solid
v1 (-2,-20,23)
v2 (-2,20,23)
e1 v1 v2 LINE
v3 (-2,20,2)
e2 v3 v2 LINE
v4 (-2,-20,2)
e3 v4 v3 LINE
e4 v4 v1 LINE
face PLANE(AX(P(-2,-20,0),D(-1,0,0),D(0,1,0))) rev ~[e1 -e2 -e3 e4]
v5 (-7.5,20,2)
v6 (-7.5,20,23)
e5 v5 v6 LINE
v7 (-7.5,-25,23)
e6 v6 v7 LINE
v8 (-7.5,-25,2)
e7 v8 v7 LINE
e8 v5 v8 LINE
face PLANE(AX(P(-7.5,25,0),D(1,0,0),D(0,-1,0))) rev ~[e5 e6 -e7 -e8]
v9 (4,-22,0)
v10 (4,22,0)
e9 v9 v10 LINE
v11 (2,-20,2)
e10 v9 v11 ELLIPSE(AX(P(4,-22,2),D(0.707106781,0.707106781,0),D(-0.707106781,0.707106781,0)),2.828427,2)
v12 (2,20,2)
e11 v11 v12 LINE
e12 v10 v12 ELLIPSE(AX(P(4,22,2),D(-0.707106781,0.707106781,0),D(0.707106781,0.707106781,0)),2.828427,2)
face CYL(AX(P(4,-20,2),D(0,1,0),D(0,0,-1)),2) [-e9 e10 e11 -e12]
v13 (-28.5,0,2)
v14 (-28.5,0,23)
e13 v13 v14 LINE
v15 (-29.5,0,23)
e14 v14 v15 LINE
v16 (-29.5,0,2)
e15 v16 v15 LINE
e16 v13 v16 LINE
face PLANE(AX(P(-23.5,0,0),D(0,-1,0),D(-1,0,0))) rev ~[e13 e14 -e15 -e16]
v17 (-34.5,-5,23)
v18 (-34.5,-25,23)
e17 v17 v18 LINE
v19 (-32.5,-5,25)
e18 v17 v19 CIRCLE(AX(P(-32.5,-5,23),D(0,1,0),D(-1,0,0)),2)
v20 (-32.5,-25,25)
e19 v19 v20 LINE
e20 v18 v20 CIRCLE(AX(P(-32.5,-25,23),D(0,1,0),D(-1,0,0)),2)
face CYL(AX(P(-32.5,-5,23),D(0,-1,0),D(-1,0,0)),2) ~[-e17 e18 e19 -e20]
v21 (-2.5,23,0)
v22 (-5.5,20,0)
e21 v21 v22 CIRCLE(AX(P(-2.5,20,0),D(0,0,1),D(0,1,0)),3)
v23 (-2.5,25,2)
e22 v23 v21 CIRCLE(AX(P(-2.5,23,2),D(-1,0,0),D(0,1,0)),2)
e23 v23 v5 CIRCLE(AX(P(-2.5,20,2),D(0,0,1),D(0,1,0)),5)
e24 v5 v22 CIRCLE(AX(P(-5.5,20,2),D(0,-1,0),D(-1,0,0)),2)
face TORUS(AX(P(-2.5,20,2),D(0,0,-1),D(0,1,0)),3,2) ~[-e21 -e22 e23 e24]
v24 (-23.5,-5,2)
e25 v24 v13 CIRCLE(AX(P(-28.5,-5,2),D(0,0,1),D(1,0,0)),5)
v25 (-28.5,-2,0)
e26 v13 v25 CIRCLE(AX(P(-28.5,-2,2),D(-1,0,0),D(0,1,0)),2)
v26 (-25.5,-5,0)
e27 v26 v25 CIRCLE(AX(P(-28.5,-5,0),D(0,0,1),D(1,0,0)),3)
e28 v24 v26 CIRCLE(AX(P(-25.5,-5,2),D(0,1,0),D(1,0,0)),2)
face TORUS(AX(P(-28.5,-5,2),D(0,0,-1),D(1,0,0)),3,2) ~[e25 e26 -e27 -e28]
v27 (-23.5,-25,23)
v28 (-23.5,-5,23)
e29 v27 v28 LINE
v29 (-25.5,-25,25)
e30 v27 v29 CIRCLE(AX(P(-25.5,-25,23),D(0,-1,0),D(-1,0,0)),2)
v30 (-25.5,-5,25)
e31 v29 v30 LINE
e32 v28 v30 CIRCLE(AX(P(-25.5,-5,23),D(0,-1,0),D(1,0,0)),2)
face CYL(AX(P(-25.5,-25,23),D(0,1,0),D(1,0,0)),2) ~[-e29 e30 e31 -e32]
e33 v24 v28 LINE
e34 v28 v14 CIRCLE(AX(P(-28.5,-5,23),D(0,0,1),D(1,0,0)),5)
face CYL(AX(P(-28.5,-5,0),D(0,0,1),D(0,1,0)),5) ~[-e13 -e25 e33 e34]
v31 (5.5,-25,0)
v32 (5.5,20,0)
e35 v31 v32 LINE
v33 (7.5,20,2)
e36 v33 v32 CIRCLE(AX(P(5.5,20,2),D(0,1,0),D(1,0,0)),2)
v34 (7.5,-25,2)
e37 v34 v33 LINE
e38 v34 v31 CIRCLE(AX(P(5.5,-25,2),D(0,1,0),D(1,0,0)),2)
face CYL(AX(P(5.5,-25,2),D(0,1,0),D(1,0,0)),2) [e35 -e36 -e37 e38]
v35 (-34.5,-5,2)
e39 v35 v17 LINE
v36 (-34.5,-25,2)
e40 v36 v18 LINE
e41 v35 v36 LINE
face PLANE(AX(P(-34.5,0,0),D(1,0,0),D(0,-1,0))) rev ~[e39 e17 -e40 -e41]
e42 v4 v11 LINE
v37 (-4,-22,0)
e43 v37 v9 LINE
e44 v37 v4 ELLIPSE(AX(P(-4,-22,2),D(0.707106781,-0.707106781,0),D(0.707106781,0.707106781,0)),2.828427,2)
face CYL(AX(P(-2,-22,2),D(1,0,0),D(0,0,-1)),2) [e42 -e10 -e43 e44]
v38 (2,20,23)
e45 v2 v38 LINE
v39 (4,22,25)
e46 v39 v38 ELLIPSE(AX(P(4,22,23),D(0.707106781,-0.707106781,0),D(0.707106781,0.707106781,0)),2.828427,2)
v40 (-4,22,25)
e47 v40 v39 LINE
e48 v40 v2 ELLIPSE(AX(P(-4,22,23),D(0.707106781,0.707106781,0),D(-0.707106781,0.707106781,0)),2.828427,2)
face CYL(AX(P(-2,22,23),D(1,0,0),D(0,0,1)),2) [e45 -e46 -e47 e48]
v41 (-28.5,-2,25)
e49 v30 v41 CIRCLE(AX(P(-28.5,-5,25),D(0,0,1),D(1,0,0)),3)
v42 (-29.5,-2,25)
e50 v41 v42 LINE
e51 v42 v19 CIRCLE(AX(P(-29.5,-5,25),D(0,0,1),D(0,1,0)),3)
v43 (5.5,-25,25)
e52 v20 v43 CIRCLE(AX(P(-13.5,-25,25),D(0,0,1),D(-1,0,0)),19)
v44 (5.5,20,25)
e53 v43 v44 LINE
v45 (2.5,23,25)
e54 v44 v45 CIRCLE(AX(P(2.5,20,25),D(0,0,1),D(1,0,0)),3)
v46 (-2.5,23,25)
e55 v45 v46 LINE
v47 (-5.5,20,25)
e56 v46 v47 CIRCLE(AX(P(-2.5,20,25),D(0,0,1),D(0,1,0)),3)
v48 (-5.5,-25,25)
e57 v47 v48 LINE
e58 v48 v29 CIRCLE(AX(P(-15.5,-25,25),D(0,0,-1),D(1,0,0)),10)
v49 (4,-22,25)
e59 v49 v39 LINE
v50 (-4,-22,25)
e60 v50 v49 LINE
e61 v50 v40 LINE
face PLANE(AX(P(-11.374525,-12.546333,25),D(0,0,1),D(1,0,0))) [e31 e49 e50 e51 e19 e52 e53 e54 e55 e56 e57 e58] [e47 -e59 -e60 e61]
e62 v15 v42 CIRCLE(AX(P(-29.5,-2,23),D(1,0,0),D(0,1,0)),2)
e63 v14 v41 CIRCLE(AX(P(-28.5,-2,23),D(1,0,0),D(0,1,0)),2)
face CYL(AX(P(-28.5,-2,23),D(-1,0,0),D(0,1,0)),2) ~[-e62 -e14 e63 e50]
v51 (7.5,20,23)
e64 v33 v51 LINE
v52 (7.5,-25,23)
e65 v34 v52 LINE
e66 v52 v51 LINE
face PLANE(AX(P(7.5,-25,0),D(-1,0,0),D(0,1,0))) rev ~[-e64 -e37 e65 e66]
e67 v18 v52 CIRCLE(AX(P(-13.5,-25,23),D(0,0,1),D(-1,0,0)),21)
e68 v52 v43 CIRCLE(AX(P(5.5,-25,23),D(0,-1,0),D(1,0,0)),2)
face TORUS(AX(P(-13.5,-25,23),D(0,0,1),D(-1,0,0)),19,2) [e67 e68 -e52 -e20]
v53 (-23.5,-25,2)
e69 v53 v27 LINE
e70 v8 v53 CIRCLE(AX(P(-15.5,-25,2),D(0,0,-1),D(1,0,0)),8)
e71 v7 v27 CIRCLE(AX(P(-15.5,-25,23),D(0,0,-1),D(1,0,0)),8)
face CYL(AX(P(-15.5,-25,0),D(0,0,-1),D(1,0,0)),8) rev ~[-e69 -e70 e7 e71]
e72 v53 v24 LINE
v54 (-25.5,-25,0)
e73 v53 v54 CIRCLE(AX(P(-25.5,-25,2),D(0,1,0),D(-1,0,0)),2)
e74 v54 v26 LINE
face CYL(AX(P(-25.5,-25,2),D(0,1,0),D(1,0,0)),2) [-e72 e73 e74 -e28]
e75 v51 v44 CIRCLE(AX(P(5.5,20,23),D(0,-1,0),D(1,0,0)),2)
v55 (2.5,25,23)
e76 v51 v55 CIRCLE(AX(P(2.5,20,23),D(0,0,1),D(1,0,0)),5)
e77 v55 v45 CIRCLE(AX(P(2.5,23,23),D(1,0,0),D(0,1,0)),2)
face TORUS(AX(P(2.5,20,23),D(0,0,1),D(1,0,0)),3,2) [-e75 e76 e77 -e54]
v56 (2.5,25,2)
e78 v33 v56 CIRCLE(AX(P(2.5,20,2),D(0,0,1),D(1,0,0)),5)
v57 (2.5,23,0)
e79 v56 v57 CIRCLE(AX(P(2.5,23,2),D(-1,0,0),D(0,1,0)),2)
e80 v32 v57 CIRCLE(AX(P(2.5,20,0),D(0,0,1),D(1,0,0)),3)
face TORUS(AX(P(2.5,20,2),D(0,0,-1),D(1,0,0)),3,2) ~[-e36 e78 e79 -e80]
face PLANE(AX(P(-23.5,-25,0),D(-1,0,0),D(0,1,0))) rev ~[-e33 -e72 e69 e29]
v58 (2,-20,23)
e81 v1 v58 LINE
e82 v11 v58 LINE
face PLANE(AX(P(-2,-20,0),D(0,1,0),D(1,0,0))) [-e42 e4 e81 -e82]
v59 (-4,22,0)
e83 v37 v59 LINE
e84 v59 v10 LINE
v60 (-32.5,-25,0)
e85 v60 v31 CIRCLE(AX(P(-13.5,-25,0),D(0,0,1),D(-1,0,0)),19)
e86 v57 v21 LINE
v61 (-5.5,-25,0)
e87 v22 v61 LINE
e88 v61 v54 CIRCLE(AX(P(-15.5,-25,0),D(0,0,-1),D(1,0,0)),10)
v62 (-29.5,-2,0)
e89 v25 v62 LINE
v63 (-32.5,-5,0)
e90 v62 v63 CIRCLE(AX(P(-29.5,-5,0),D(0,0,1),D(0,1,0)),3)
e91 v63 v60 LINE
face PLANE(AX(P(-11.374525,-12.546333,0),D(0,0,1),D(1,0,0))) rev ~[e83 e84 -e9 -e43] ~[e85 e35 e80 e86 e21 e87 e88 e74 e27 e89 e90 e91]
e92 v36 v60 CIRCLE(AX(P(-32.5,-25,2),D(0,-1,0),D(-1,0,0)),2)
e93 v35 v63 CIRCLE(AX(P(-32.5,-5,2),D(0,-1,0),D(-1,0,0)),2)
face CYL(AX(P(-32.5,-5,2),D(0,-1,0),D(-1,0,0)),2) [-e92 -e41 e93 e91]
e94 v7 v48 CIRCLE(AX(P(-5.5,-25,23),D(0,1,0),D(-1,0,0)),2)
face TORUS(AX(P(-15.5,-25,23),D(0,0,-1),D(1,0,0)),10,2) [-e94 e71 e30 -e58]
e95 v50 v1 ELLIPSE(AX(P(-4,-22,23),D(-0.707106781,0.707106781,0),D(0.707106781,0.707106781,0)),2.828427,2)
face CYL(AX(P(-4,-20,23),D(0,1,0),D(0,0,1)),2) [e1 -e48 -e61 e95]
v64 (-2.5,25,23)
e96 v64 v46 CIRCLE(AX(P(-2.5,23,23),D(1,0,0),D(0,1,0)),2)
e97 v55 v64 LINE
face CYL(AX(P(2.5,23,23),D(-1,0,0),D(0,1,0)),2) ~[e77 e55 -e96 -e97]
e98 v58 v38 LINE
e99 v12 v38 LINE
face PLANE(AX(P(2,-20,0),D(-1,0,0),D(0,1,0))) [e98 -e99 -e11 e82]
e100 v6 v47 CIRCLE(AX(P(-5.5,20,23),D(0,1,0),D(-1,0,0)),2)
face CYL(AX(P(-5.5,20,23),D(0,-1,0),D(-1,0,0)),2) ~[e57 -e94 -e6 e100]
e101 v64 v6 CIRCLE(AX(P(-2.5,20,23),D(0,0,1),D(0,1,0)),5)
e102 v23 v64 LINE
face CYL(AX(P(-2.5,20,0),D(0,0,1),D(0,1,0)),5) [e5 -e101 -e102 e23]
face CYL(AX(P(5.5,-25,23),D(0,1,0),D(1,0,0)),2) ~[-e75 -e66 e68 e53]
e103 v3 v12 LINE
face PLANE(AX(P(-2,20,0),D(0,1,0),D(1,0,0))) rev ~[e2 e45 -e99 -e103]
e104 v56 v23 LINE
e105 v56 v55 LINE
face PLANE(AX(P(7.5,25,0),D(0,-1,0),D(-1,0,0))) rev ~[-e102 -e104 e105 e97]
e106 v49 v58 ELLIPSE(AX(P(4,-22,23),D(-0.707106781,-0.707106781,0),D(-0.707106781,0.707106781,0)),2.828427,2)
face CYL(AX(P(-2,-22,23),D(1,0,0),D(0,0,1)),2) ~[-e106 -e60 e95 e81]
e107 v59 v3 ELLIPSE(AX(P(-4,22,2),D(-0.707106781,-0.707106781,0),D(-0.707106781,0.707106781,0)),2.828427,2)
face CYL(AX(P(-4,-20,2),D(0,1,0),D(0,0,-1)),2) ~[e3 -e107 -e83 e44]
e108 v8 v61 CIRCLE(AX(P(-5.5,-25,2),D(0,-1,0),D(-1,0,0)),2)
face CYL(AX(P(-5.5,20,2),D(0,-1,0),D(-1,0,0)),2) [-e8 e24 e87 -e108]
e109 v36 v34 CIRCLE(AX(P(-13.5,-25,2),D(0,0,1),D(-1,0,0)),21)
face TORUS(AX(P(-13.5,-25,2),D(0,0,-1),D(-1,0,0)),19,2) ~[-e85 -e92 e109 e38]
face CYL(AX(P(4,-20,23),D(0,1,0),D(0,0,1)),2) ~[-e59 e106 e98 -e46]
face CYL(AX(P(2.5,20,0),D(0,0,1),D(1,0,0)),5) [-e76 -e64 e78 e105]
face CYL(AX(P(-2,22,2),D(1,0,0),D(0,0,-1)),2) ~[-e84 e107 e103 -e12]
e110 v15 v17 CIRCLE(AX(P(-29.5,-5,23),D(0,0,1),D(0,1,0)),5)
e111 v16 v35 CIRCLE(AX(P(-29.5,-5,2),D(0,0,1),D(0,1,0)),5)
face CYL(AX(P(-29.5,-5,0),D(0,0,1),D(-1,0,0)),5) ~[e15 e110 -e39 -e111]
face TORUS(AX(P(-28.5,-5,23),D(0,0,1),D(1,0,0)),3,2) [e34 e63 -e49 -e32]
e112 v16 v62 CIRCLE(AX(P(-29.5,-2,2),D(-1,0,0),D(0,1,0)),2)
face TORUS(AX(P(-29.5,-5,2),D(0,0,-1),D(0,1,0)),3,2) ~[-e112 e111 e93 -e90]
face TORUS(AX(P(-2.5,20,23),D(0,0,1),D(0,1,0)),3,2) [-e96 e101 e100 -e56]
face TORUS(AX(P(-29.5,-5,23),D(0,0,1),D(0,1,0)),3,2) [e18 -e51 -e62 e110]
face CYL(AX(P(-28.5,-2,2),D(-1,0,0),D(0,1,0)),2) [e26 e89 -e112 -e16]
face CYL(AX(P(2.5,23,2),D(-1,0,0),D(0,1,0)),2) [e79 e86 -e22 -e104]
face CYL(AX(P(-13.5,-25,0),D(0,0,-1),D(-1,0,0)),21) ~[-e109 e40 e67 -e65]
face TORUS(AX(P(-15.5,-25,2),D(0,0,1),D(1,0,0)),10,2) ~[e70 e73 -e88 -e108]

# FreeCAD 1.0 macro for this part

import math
import FreeCAD as App
import Part
import Sketcher
from FreeCAD import Vector


def edges_at(feature, points):
    """Names of the edges that pass closest to the given points."""
    edges = feature.Shape.Edges
    near = lambda p: min(range(len(edges)), key=lambda i: edges[i].distToShape(Part.Vertex(*p))[0])
    return sorted({f"Edge{near(p) + 1}" for p in points})

doc = App.newDocument("Part")
body = doc.addObject("PartDesign::Body", "Body")

# Sketch on XY plane
sketch1 = body.newObject("Sketcher::SketchObject", "Sketch")
sketch1.AttachmentSupport = (doc.getObject("XY_Plane"), [""])
sketch1.MapMode = "FlatFace"
sketch1.addGeometry([
    Part.LineSegment(Vector(7.5, -25, 0), Vector(7.5, 25, 0)),  # 0
    Part.LineSegment(Vector(7.5, 25, 0), Vector(-7.5, 25, 0)),  # 1
    Part.LineSegment(Vector(-7.5, 25, 0), Vector(-7.5, -25, 0)),  # 2
    Part.ArcOfCircle(Part.Circle(Vector(-15.5, -25, 0), Vector(0, 0, 1), 8), math.radians(180), math.radians(360)),  # 3
    Part.LineSegment(Vector(-23.5, -25, 0), Vector(-23.5, 0, 0)),  # 4
    Part.LineSegment(Vector(-23.5, 0, 0), Vector(-34.5, 0, 0)),  # 5
    Part.LineSegment(Vector(-34.5, 0, 0), Vector(-34.5, -25, 0)),  # 6
    Part.ArcOfCircle(Part.Circle(Vector(-13.5, -25, 0), Vector(0, 0, 1), 21), math.radians(180), math.radians(360)),  # 7
    Part.LineSegment(Vector(2, -20, 0), Vector(-2, -20, 0)),  # 8
    Part.LineSegment(Vector(-2, -20, 0), Vector(-2, 20, 0)),  # 9
    Part.LineSegment(Vector(-2, 20, 0), Vector(2, 20, 0)),  # 10
    Part.LineSegment(Vector(2, 20, 0), Vector(2, -20, 0)),  # 11
], False)
sketch1.addConstraint([
    Sketcher.Constraint("Coincident", 0, 2, 1, 1),
    Sketcher.Constraint("Coincident", 1, 2, 2, 1),
    Sketcher.Constraint("Tangent", 2, 2, 3, 2),
    Sketcher.Constraint("Tangent", 3, 1, 4, 1),
    Sketcher.Constraint("Coincident", 4, 2, 5, 1),
    Sketcher.Constraint("Coincident", 5, 2, 6, 1),
    Sketcher.Constraint("Tangent", 6, 2, 7, 1),
    Sketcher.Constraint("Tangent", 7, 2, 0, 1),
    Sketcher.Constraint("Coincident", 8, 2, 9, 1),
    Sketcher.Constraint("Coincident", 9, 2, 10, 1),
    Sketcher.Constraint("Coincident", 10, 2, 11, 1),
    Sketcher.Constraint("Coincident", 11, 2, 8, 1),
    Sketcher.Constraint("Vertical", 0),
    Sketcher.Constraint("Horizontal", 1),
    Sketcher.Constraint("Vertical", 2),
    Sketcher.Constraint("Vertical", 4),
    Sketcher.Constraint("Horizontal", 5),
    Sketcher.Constraint("Vertical", 6),
    Sketcher.Constraint("Horizontal", 8),
    Sketcher.Constraint("Vertical", 9),
    Sketcher.Constraint("Horizontal", 10),
    Sketcher.Constraint("Vertical", 11),
    Sketcher.Constraint("Symmetric", 0, 2, 2, 2, -1, 1),
    Sketcher.Constraint("Symmetric", 8, 2, 10, 2, -1, 1),
    Sketcher.Constraint("PointOnObject", 4, 2, -1),
    Sketcher.Constraint("Horizontal", 3, 3, 7, 3),
    Sketcher.Constraint("Radius", 3, 8.0),
    Sketcher.Constraint("Radius", 7, 21.0),
    Sketcher.Constraint("DistanceX", 1, 2, 1, 1, 15.0),
    Sketcher.Constraint("DistanceX", 8, 2, 8, 1, 4.0),
    Sketcher.Constraint("DistanceY", 0, 1, 0, 2, 50.0),
    Sketcher.Constraint("DistanceY", 9, 1, 9, 2, 40.0),
])
pad1 = body.newObject("PartDesign::Pad", "Pad")
pad1.Profile = sketch1
pad1.Length = 25
doc.recompute()

fillet = body.newObject("PartDesign::Fillet", "Fillet")
fillet.Base = (pad1, edges_at(pad1, [
    (-7.5, 25, 12.5),
    (7.5, 25, 12.5),
    (-23.5, 0, 12.5),
    (-34.5, 0, 12.5),
]))
fillet.Radius = 5
doc.recompute()

fillet2 = body.newObject("PartDesign::Fillet", "Fillet001")
fillet2.Base = (fillet, edges_at(fillet, [
    (7.5, -2.5, 25),
    (6.036, 23.536, 25),
    (-13.5, -46, 25),
    (0, 25, 25),
    (-34.5, -15, 25),
    (-6.036, 23.536, 25),
    (-33.036, -1.464, 25),
    (-7.5, -2.5, 25),
    (-29, 0, 25),
    (-15.5, -33, 25),
    (-24.964, -1.464, 25),
    (-23.5, -15, 25),
    (2, 0, 25),
    (0, -20, 25),
    (-2, 0, 25),
    (0, 20, 25),
    (7.5, -2.5, 0),
    (6.036, 23.536, 0),
    (-13.5, -46, 0),
    (0, 25, 0),
    (-34.5, -15, 0),
    (-6.036, 23.536, 0),
    (-33.036, -1.464, 0),
    (-7.5, -2.5, 0),
    (-29, 0, 0),
    (-15.5, -33, 0),
    (-24.964, -1.464, 0),
    (-23.5, -15, 0),
    (2, 0, 0),
    (0, -20, 0),
    (-2, 0, 0),
    (0, 20, 0),
]))
fillet2.Radius = 2

doc.recompute()
